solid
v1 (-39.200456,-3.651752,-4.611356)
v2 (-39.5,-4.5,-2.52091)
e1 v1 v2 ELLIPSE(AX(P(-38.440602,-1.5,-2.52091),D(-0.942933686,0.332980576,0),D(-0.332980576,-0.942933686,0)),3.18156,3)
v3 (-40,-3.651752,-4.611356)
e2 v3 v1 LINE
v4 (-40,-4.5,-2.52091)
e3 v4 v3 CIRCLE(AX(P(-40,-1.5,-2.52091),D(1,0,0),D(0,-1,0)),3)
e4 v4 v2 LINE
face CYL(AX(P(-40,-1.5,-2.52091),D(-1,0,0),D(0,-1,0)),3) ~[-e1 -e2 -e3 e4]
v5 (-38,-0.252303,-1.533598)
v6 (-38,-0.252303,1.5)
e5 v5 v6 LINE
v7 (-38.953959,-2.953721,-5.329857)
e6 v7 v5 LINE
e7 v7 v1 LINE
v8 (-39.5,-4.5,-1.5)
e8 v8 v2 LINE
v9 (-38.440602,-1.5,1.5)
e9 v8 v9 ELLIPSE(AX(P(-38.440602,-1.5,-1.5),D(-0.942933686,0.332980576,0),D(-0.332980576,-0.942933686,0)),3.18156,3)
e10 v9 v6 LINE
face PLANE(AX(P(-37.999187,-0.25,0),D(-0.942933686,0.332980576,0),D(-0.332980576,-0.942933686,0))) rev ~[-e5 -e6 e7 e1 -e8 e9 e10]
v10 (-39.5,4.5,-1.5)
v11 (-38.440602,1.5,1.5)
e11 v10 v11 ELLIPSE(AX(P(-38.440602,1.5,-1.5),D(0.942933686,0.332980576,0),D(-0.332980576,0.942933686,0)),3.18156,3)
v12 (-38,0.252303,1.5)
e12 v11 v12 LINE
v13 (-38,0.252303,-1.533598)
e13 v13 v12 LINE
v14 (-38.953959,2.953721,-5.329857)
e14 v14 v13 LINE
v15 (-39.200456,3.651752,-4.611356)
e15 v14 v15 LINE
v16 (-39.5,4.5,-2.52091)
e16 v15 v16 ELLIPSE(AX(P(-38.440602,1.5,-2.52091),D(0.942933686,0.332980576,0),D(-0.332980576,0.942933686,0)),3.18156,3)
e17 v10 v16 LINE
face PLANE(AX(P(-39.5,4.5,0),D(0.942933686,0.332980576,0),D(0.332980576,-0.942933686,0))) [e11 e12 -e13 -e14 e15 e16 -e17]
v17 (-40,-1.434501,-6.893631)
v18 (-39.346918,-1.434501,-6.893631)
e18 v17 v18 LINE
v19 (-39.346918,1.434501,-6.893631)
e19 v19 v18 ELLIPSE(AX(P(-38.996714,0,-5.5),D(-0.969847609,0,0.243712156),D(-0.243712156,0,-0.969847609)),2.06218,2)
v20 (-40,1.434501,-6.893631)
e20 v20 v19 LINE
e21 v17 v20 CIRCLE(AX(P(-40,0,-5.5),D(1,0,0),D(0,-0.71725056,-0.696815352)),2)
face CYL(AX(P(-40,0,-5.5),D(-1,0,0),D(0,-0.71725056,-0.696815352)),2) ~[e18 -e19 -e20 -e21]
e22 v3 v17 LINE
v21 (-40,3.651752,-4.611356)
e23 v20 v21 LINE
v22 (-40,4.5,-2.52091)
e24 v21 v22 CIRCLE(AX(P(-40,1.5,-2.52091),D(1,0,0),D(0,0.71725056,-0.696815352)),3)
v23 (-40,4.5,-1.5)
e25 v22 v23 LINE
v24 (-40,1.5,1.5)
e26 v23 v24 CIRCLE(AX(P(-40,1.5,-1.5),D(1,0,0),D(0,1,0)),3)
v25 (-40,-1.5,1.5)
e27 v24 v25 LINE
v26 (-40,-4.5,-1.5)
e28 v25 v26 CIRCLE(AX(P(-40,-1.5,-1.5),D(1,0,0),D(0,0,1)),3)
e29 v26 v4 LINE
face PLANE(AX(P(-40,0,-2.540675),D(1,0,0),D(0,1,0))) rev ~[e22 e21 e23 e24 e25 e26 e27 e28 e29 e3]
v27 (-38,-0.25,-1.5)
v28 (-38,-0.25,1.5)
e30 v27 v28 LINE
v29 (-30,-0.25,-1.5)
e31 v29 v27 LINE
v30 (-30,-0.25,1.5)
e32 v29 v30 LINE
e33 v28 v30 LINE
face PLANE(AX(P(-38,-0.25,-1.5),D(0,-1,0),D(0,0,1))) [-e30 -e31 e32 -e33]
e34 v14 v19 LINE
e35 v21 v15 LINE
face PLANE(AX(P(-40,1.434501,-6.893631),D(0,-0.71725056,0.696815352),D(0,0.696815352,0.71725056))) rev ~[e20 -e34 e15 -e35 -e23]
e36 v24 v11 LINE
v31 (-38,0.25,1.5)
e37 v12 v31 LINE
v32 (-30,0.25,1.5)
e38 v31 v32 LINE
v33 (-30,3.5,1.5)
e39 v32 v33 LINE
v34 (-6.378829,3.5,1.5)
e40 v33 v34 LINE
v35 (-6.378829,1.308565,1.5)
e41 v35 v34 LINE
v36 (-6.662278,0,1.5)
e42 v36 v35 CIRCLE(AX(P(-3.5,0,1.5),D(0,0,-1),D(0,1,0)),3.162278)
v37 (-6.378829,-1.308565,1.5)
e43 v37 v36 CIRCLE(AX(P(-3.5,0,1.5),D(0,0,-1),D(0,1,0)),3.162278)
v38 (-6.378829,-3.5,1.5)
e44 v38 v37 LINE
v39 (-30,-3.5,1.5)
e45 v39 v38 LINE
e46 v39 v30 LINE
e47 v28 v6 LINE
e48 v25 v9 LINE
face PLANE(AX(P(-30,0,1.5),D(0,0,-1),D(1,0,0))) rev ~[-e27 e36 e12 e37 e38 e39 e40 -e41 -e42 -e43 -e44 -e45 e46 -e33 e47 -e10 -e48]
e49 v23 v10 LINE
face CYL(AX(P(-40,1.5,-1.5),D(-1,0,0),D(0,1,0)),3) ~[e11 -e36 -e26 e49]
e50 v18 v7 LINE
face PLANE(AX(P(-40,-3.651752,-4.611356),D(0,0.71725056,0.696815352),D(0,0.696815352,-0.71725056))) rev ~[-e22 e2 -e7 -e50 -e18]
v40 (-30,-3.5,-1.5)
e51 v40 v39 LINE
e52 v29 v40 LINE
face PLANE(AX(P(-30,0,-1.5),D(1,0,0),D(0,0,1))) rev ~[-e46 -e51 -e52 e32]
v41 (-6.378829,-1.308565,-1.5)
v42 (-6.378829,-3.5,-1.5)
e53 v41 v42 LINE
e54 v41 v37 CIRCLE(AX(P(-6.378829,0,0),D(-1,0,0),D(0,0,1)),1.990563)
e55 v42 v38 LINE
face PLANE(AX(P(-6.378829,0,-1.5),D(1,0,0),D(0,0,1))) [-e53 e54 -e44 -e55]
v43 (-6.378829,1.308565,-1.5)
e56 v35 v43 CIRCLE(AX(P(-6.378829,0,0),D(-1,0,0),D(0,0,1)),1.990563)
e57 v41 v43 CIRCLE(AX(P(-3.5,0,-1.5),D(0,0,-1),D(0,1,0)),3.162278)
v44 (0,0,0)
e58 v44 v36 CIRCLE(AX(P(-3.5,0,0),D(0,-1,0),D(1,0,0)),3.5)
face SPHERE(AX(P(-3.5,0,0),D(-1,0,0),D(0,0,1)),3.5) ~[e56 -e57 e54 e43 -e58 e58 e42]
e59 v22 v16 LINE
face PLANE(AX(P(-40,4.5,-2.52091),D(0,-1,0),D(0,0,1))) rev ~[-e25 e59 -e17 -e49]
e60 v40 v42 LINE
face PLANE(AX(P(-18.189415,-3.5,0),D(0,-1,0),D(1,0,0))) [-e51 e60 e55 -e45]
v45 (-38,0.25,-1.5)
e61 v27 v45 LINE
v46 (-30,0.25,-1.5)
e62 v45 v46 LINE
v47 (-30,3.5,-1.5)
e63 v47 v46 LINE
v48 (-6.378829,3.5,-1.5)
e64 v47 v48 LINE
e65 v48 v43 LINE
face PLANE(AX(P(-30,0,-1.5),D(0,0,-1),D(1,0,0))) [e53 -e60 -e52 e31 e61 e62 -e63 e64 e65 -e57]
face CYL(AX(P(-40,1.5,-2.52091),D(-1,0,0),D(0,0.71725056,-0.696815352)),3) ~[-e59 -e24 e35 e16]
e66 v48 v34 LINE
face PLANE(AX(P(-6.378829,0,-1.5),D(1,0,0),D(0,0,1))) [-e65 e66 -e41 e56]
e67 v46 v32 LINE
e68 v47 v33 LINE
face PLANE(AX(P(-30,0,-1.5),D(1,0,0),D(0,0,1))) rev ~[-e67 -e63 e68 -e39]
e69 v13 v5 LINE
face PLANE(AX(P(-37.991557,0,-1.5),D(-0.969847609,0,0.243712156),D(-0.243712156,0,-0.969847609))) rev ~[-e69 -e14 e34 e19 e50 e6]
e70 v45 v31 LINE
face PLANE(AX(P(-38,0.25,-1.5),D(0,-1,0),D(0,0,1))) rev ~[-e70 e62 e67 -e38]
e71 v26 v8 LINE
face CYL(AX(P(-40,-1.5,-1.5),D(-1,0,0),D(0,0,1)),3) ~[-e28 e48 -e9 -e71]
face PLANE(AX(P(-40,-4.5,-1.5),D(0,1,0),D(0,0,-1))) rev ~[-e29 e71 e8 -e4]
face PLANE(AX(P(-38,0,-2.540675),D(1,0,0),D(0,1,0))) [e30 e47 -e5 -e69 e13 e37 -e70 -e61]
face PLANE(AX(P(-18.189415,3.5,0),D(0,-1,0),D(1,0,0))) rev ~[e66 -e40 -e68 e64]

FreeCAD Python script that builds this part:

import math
import FreeCAD as App
import Part
import Sketcher
from FreeCAD import Vector


def add_polygon(sketch, points):
    """Adds a closed chain of lines whose ends are joined by coincident constraints."""
    first, n = sketch.GeometryCount, len(points)
    for a, b in zip(points, points[1:] + points[:1]):
        sketch.addGeometry(Part.LineSegment(App.Vector(*a, 0), App.Vector(*b, 0)), False)
    for i in range(n):
        sketch.addConstraint(Sketcher.Constraint("Coincident", first + i, 2, first + (i + 1) % n, 1))

doc = App.newDocument("Part")
body = doc.addObject("PartDesign::Body", "Body")

sketch1 = body.newObject("Sketcher::SketchObject", "Sketch")
sketch1.AttachmentSupport = (doc.getObject("XZ_Plane"), [""])
sketch1.MapMode = "FlatFace"
sketch1.addGeometry([
    Part.LineSegment(Vector(-7, 0, 0), Vector(0, 0, 0)),
    Part.ArcOfCircle(Part.Circle(Vector(-3.5, 0, 0), Vector(0, 0, 1), 3.5), math.radians(0), math.radians(180)),
], False)
sketch1.addConstraint([
    Sketcher.Constraint("Coincident", 0, 1, 1, 2),
    Sketcher.Constraint("Coincident", 1, 1, 0, 2),
    Sketcher.Constraint("Horizontal", 0),
    Sketcher.Constraint("Coincident", 1, 1, -1, 1),
    Sketcher.Constraint("PointOnObject", 1, 3, -1),
    Sketcher.Constraint("Radius", 1, 3.5),
])
revolution = body.newObject("PartDesign::Revolution", "Revolution")
revolution.Profile = sketch1
revolution.ReferenceAxis = (sketch1, ["H_Axis"])
revolution.Angle = 360

sketch2 = body.newObject("Sketcher::SketchObject", "Sketch001")
sketch2.AttachmentSupport = (doc.getObject("XZ_Plane"), [""])
sketch2.MapMode = "FlatFace"
add_polygon(sketch2, [(-30, 1.5), (-30, -1.5), (-6.4, -1.5), (-6.4, 1.5)])
sketch2.addConstraint([
    Sketcher.Constraint("Vertical", 0),
    Sketcher.Constraint("Horizontal", 1),
    Sketcher.Constraint("Vertical", 2),
    Sketcher.Constraint("Horizontal", 3),
    Sketcher.Constraint("DistanceY", 0, 2, 0, 1, 3.0),
    Sketcher.Constraint("DistanceX", 0, 2, -1, 1, 30.0),
    Sketcher.Constraint("DistanceY", 0, 2, -1, 1, 1.5),
    Sketcher.Constraint("DistanceX", 1, 1, 1, 2, 23.621171),
])
pad1 = body.newObject("PartDesign::Pad", "Pad")
pad1.Profile = sketch2
pad1.Length = 7
pad1.Midplane = True
body2 = doc.addObject("PartDesign::Body", "Body001")

sketch3 = body2.newObject("Sketcher::SketchObject", "Sketch002")
sketch3.AttachmentSupport = (doc.getObject("YZ_Plane001"), [""])
sketch3.MapMode = "FlatFace"
sketch3.AttachmentOffset = App.Placement(Vector(0, 0, -40), App.Rotation())
sketch3.addGeometry([
    Part.ArcOfCircle(Part.Circle(Vector(1.5, -1.5, 0), Vector(0, 0, 1), 3), math.radians(0), math.radians(90)),
    Part.LineSegment(Vector(1.5, 1.5, 0), Vector(-1.5, 1.5, 0)),
    Part.ArcOfCircle(Part.Circle(Vector(-1.5, -1.5, 0), Vector(0, 0, 1), 3), math.radians(90), math.radians(180)),
    Part.LineSegment(Vector(-4.5, -1.5, 0), Vector(-4.5, -2.5, 0)),
    Part.ArcOfCircle(Part.Circle(Vector(-1.5, -2.5, 0), Vector(0, 0, 1), 3), math.radians(180), math.radians(224)),
    Part.LineSegment(Vector(-3.7, -4.6, 0), Vector(-1.4, -6.9, 0)),
    Part.ArcOfCircle(Part.Circle(Vector(0, -5.5, 0), Vector(0, 0, 1), 2), math.radians(-136), math.radians(-44)),
    Part.LineSegment(Vector(1.4, -6.9, 0), Vector(3.7, -4.6, 0)),
    Part.ArcOfCircle(Part.Circle(Vector(1.5, -2.5, 0), Vector(0, 0, 1), 3), math.radians(-44), math.radians(0)),
    Part.LineSegment(Vector(4.5, -2.5, 0), Vector(4.5, -1.5, 0)),
], False)
sketch3.addConstraint([
    Sketcher.Constraint("Tangent", 0, 2, 1, 1),
    Sketcher.Constraint("Tangent", 1, 2, 2, 1),
    Sketcher.Constraint("Tangent", 2, 2, 3, 1),
    Sketcher.Constraint("Tangent", 3, 2, 4, 1),
    Sketcher.Constraint("Tangent", 4, 2, 5, 1),
    Sketcher.Constraint("Tangent", 5, 2, 6, 1),
    Sketcher.Constraint("Tangent", 6, 2, 7, 1),
    Sketcher.Constraint("Tangent", 7, 2, 8, 1),
    Sketcher.Constraint("Tangent", 8, 2, 9, 1),
    Sketcher.Constraint("Tangent", 9, 2, 0, 1),
    Sketcher.Constraint("Horizontal", 1),
    Sketcher.Constraint("Vertical", 3),
    Sketcher.Constraint("Vertical", 9),
    Sketcher.Constraint("Equal", 0, 2),
    Sketcher.Constraint("Equal", 2, 4),
    Sketcher.Constraint("Equal", 4, 8),
    Sketcher.Constraint("Symmetric", 4, 3, 8, 3, -2),
    Sketcher.Constraint("PointOnObject", 6, 3, -2),
    Sketcher.Constraint("Radius", 0, 3.0),
    Sketcher.Constraint("Radius", 6, 2.0),
    Sketcher.Constraint("DistanceX", 1, 2, 1, 1, 3.0),
    Sketcher.Constraint("DistanceY", 6, 3, 0, 3, 4.0),
    Sketcher.Constraint("DistanceY", 0, 3, -1, 1, 1.5),
    Sketcher.Constraint("DistanceY", 3, 2, 3, 1, 1.02091),
])
pad2 = body2.newObject("PartDesign::Pad", "Pad001")
pad2.Profile = sketch3
pad2.Length = 2
body3 = doc.addObject("PartDesign::Body", "Body002")

sketch4 = body3.newObject("Sketcher::SketchObject", "Sketch003")
sketch4.AttachmentSupport = (doc.getObject("YZ_Plane002"), [""])
sketch4.MapMode = "FlatFace"
sketch4.AttachmentOffset = App.Placement(Vector(0, 0, -38), App.Rotation())
add_polygon(sketch4, [(-0.2, 1.5), (-0.2, -1.5), (0.2, -1.5), (0.2, 1.5)])
sketch4.addConstraint([
    Sketcher.Constraint("Vertical", 0),
    Sketcher.Constraint("Horizontal", 1),
    Sketcher.Constraint("Vertical", 2),
    Sketcher.Constraint("Horizontal", 3),
    Sketcher.Constraint("Symmetric", 0, 2, 2, 2, -1, 1),
    Sketcher.Constraint("DistanceY", 0, 2, 0, 1, 3.0),
    Sketcher.Constraint("DistanceX", 1, 1, 1, 2, 0.5),
])
pad3 = body3.newObject("PartDesign::Pad", "Pad002")
pad3.Profile = sketch4
pad3.Length = 8
doc.recompute()

boolean = body2.newObject("PartDesign::Boolean", "Boolean")
boolean.Type = "Fuse"
boolean.addObjects([body3])
doc.recompute()

boolean2 = body.newObject("PartDesign::Boolean", "Boolean001")
boolean2.Type = "Fuse"
boolean2.addObjects([body2])

sketch5 = body.newObject("Sketcher::SketchObject", "Sketch004")
sketch5.AttachmentSupport = (doc.getObject("XY_Plane"), [""])
sketch5.MapMode = "FlatFace"
add_polygon(sketch5, [(-39.5, 4.5), (-38, 0.2), (-38, 4.5)])
add_polygon(sketch5, [(-38, -4.5), (-38, -0.2), (-39.5, -4.5)])
sketch5.addConstraint([
    Sketcher.Constraint("Horizontal", 2),
    Sketcher.Constraint("Horizontal", 5),
    Sketcher.Constraint("Symmetric", 0, 2, 3, 2, -1),
    Sketcher.Constraint("Symmetric", 2, 2, 4, 2, -1),
    Sketcher.Constraint("Vertical", 1, 2, 5, 2),
    Sketcher.Constraint("DistanceY", 4, 2, 2, 2, 9.0),
    Sketcher.Constraint("DistanceX", 2, 2, -1, 1, 39.5),
    Sketcher.Constraint("DistanceY", 3, 2, 0, 2, 0.5),
    Sketcher.Constraint("Distance", 0, 4.50721),
    Sketcher.Constraint("DistanceX", 2, 2, 2, 1, 1.509035),
])
pocket1 = body.newObject("PartDesign::Pocket", "Pocket")
pocket1.Profile = sketch5
pocket1.Length = 30
pocket1.Midplane = True

sketch6 = body.newObject("Sketcher::SketchObject", "Sketch005")
sketch6.AttachmentSupport = (doc.getObject("XZ_Plane"), [""])
sketch6.MapMode = "FlatFace"
add_polygon(sketch6, [(-38, -7.5), (-38, -1.5), (-39.5, -7.5)])
sketch6.addConstraint([
    Sketcher.Constraint("Horizontal", 2),
    Sketcher.Constraint("DistanceX", 2, 1, 2, 2, 1.5),
    Sketcher.Constraint("DistanceX", 2, 2, -1, 1, 38.0),
    Sketcher.Constraint("DistanceY", 0, 2, -1, 1, 1.5),
    Sketcher.Constraint("Distance", 0, 6.002823),
    Sketcher.Constraint("Distance", 1, 6.189444),
])
pocket2 = body.newObject("PartDesign::Pocket", "Pocket001")
pocket2.Profile = sketch6
pocket2.Length = 30
pocket2.Midplane = True

doc.recompute()
